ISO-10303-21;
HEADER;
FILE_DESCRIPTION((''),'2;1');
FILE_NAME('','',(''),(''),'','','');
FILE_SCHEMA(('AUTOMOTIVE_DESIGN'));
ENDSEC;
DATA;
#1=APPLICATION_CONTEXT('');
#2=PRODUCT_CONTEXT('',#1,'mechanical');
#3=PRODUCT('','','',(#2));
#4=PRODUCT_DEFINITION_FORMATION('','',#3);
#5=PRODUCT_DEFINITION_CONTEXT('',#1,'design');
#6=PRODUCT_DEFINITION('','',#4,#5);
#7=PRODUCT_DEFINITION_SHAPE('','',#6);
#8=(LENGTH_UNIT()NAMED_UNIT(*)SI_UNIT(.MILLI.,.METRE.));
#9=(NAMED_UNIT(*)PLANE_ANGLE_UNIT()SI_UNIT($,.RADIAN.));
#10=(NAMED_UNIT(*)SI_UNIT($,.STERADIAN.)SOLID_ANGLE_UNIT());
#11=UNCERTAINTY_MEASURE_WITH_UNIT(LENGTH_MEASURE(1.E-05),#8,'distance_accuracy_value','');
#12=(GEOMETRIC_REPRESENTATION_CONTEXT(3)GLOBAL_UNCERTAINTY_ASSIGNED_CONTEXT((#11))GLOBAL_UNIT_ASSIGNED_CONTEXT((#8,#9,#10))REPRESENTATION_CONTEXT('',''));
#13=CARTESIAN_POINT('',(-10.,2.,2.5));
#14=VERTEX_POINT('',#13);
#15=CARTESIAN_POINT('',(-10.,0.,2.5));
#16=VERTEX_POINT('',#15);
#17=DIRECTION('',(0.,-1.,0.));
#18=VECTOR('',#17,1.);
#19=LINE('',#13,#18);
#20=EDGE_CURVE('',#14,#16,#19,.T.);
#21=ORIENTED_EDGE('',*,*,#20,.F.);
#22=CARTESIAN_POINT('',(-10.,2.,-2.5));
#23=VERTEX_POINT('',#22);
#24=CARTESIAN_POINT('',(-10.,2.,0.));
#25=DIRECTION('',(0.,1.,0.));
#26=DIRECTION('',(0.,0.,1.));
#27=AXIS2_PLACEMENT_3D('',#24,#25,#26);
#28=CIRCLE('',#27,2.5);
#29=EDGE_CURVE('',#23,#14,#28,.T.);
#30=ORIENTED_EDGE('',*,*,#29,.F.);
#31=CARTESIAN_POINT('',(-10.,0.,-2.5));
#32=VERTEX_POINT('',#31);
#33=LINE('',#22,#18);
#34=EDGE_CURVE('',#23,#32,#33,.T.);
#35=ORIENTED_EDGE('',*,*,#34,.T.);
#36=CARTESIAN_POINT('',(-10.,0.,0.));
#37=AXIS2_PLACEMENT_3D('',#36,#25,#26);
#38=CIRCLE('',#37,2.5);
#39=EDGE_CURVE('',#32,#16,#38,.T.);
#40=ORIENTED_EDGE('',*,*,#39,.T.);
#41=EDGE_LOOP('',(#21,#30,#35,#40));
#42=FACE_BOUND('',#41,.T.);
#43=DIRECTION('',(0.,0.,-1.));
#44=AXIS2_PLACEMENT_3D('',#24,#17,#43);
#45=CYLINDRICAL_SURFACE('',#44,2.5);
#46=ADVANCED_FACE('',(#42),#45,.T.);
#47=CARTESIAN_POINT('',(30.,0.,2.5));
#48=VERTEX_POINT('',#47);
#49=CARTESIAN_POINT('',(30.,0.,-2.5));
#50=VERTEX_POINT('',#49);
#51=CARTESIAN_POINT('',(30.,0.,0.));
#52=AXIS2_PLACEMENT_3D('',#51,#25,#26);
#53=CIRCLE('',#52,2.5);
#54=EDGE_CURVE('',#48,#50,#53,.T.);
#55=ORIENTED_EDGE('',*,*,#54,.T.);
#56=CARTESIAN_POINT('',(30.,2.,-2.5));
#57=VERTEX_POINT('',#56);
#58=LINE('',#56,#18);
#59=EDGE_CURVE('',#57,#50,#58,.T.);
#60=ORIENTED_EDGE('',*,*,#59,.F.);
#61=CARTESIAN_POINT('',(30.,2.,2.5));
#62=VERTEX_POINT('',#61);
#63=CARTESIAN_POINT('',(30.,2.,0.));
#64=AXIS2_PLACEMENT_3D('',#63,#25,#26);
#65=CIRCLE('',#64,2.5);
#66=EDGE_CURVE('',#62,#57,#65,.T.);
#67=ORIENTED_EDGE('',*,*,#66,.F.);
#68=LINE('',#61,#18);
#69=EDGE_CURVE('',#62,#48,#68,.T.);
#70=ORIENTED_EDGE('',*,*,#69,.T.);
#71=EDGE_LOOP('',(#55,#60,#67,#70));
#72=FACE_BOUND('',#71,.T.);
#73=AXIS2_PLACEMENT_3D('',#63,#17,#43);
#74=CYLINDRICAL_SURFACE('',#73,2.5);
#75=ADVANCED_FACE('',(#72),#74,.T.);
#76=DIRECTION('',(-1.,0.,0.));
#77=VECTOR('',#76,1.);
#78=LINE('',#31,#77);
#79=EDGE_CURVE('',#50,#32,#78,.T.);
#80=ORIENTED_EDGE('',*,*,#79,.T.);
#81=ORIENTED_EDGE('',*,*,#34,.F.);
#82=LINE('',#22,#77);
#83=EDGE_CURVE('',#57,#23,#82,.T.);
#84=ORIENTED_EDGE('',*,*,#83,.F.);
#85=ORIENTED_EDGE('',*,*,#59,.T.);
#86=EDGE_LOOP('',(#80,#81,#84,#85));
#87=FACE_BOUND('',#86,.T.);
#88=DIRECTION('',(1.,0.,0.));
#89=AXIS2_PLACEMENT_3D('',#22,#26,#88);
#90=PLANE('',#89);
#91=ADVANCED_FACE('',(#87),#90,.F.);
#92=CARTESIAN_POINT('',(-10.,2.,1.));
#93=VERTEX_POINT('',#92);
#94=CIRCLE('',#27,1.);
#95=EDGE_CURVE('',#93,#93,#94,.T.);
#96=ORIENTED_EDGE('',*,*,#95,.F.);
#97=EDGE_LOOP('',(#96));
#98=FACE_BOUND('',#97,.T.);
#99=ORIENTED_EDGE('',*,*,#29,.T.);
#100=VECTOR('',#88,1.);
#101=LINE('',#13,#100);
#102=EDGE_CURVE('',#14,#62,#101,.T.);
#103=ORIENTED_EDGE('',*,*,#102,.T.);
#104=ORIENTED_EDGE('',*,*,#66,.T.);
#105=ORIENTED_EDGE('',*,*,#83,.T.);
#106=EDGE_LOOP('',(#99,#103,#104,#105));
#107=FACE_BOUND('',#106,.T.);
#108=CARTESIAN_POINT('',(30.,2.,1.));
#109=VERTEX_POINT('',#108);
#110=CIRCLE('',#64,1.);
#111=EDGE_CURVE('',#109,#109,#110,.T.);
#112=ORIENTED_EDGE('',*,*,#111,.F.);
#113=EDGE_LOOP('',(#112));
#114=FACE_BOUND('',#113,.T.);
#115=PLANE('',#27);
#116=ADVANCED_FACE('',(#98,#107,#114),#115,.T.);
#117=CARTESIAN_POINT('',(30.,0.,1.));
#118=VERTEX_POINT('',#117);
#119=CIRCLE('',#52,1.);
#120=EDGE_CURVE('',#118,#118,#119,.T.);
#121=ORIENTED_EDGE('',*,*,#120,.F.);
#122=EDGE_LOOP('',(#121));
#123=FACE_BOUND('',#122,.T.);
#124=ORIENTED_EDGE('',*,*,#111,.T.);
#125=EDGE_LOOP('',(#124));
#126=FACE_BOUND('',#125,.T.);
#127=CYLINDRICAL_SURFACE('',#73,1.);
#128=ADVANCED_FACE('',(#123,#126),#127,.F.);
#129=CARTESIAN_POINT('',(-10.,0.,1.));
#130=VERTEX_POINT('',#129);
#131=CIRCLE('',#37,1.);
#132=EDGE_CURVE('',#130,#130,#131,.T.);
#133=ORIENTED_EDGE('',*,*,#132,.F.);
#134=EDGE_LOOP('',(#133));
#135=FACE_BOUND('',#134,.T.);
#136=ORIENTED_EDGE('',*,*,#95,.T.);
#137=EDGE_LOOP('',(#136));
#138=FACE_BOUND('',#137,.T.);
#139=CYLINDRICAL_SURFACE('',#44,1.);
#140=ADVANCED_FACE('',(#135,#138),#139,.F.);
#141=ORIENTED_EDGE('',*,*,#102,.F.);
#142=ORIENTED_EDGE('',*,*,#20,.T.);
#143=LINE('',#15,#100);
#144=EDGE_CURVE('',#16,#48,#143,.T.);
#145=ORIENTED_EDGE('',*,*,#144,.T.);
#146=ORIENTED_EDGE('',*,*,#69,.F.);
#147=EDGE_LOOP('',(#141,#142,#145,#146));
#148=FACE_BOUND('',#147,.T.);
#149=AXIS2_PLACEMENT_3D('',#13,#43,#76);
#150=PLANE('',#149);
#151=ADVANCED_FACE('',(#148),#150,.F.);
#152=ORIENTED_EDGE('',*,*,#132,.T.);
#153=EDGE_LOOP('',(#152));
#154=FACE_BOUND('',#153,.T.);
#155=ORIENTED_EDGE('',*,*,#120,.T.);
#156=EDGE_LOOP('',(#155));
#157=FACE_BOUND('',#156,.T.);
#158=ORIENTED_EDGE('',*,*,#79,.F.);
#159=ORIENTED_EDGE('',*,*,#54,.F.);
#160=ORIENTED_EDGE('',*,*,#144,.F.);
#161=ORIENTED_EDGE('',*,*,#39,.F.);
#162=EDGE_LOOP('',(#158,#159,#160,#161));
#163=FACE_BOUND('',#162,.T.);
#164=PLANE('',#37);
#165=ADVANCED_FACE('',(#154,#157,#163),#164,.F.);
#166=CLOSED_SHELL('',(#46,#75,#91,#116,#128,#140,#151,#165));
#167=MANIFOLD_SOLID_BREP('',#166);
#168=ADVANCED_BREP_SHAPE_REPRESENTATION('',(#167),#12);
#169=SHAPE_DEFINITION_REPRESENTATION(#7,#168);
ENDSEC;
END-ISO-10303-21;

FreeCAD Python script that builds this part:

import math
import FreeCAD as App
import Part
import Sketcher

V = App.Vector
Q = App.Units.Quantity

doc = App.newDocument("Part")
params = doc.addObject("Spreadsheet::Sheet", "Params")
for row, (alias, value) in enumerate([
    ("sketch1_diameter", "2 mm"),
    ("sketch1_radius", "2.5 mm"),
    ("sketch1_width", "40 mm"),
    ("pad1_length", "2 mm"),
], start=1):
    params.set(f"A{row}", alias)
    params.set(f"B{row}", "=" + value)
    params.setAlias(f"B{row}", alias)

body = doc.addObject("PartDesign::Body", "Body")

# Sketch on XZ plane
sketch1 = doc.addObject("Sketcher::SketchObject", "Sketch")
body.addObject(sketch1)
sketch1.AttachmentSupport = (doc.XZ_Plane, [""])
sketch1.MapMode = "FlatFace"
sketch1.addGeometry([
    Part.LineSegment(V(30, -2.5, 0), V(-10, -2.5, 0)),  # 0
    Part.ArcOfCircle(Part.Circle(V(-10, 0, 0), V(0, 0, 1), 2.5), math.radians(90), math.radians(270)),  # 1
    Part.LineSegment(V(-10, 2.5, 0), V(30, 2.5, 0)),  # 2
    Part.ArcOfCircle(Part.Circle(V(30, 0, 0), V(0, 0, 1), 2.5), math.radians(-90), math.radians(90)),  # 3
    Part.Circle(V(30, 0, 0), V(0, 0, 1), 1),  # 4
    Part.Circle(V(-10, 0, 0), V(0, 0, 1), 1),  # 5
], False)
sketch1.addConstraint([
    Sketcher.Constraint("Tangent", 0, 2, 1, 2),
    Sketcher.Constraint("Tangent", 1, 1, 2, 1),
    Sketcher.Constraint("Tangent", 2, 2, 3, 2),
    Sketcher.Constraint("Tangent", 3, 1, 0, 1),
    Sketcher.Constraint("Horizontal", 0),
    Sketcher.Constraint("Horizontal", 2),
    Sketcher.Constraint("Coincident", 4, 3, 3, 3),
    Sketcher.Constraint("Coincident", 5, 3, 1, 3),
    Sketcher.Constraint("Equal", 4, 5),
    Sketcher.Constraint("PointOnObject", 1, 3, -1),
    Sketcher.Constraint("Diameter", 4, Q("2 mm")),
    Sketcher.Constraint("Radius", 1, Q("2.5 mm")),
    Sketcher.Constraint("DistanceX", 0, 2, 0, 1, Q("40 mm")),
    Sketcher.Constraint("DistanceX", 1, 3, -1, 1, Q("10 mm")),
])
sketch1.setExpression("Constraints[10]", "Params.sketch1_diameter")
sketch1.setExpression("Constraints[11]", "Params.sketch1_radius")
sketch1.setExpression("Constraints[12]", "Params.sketch1_width")
pad1 = doc.addObject("PartDesign::Pad", "Pad")
body.addObject(pad1)
pad1.Profile = sketch1
pad1.setExpression("Length", "Params.pad1_length")
pad1.Reversed = True

doc.recompute()
